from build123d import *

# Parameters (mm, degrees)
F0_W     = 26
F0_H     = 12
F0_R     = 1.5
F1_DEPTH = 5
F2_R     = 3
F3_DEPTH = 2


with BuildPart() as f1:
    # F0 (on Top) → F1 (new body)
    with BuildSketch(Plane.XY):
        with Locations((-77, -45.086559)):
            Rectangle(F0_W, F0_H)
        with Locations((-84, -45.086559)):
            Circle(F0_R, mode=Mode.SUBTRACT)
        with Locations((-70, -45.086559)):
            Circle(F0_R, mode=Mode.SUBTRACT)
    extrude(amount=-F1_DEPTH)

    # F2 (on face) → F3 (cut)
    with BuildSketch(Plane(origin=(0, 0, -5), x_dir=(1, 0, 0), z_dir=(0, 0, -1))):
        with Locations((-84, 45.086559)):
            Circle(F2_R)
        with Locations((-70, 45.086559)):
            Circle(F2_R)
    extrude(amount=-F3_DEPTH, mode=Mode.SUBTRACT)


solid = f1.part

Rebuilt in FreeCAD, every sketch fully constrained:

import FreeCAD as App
import Part
import Sketcher

V = App.Vector

doc = App.newDocument("Part")
body = doc.addObject("PartDesign::Body", "Body")

# Sketch on XY plane
sketch1 = body.newObject("Sketcher::SketchObject", "Sketch")
sketch1.AttachmentSupport = (doc.getObject("XY_Plane"), [""])
sketch1.MapMode = "FlatFace"
sketch1.addGeometry([
    Part.LineSegment(V(-90, -39.1, 0), V(-90, -51.1, 0)),  # 0
    Part.LineSegment(V(-90, -51.1, 0), V(-64, -51.1, 0)),  # 1
    Part.LineSegment(V(-64, -51.1, 0), V(-64, -39.1, 0)),  # 2
    Part.LineSegment(V(-64, -39.1, 0), V(-90, -39.1, 0)),  # 3
    Part.Circle(V(-84, -45.1, 0), V(0, 0, 1), 1.5),  # 4
    Part.Circle(V(-70, -45.1, 0), V(0, 0, 1), 1.5),  # 5
], False)
sketch1.addConstraint([
    Sketcher.Constraint("Coincident", 0, 2, 1, 1),
    Sketcher.Constraint("Coincident", 1, 2, 2, 1),
    Sketcher.Constraint("Coincident", 2, 2, 3, 1),
    Sketcher.Constraint("Coincident", 3, 2, 0, 1),
    Sketcher.Constraint("Vertical", 0),
    Sketcher.Constraint("Horizontal", 1),
    Sketcher.Constraint("Vertical", 2),
    Sketcher.Constraint("Horizontal", 3),
    Sketcher.Constraint("Equal", 4, 5),
    Sketcher.Constraint("Horizontal", 4, 3, 5, 3),
    Sketcher.Constraint("Diameter", 4, 3.0),
    Sketcher.Constraint("DistanceX", 1, 1, 1, 2, 26.0),
    Sketcher.Constraint("DistanceY", 0, 2, 0, 1, 12.0),
    Sketcher.Constraint("DistanceX", 4, 3, -1, 1, 84.0),
    Sketcher.Constraint("DistanceX", 5, 3, -1, 1, 70.0),
    Sketcher.Constraint("DistanceX", 0, 2, -1, 1, 90.0),
    Sketcher.Constraint("DistanceY", 0, 2, 4, 3, 6.0),
    Sketcher.Constraint("DistanceY", 4, 3, -1, 1, 45.086559),
])
pad1 = body.newObject("PartDesign::Pad", "Pad")
pad1.Profile = sketch1
pad1.Length = 5
pad1.Reversed = True

# Sketch on XY plane
sketch2 = body.newObject("Sketcher::SketchObject", "Sketch001")
sketch2.AttachmentSupport = (doc.getObject("XY_Plane"), [""])
sketch2.MapMode = "FlatFace"
sketch2.AttachmentOffset = App.Placement(V(0, 0, -5), App.Rotation())
sketch2.addGeometry([
    Part.Circle(V(-84, -45.1, 0), V(0, 0, 1), 3),
    Part.Circle(V(-70, -45.1, 0), V(0, 0, 1), 3),
], False)
sketch2.addConstraint([
    Sketcher.Constraint("Equal", 0, 1),
    Sketcher.Constraint("Horizontal", 0, 3, 1, 3),
    Sketcher.Constraint("Diameter", 0, 6.0),
    Sketcher.Constraint("DistanceX", 0, 3, -1, 1, 84.0),
    Sketcher.Constraint("DistanceX", 1, 3, -1, 1, 70.0),
    Sketcher.Constraint("DistanceY", 0, 3, -1, 1, 45.086559),
])
pocket1 = body.newObject("PartDesign::Pocket", "Pocket")
pocket1.Profile = sketch2
pocket1.Length = 2
pocket1.Reversed = True

doc.recompute()
